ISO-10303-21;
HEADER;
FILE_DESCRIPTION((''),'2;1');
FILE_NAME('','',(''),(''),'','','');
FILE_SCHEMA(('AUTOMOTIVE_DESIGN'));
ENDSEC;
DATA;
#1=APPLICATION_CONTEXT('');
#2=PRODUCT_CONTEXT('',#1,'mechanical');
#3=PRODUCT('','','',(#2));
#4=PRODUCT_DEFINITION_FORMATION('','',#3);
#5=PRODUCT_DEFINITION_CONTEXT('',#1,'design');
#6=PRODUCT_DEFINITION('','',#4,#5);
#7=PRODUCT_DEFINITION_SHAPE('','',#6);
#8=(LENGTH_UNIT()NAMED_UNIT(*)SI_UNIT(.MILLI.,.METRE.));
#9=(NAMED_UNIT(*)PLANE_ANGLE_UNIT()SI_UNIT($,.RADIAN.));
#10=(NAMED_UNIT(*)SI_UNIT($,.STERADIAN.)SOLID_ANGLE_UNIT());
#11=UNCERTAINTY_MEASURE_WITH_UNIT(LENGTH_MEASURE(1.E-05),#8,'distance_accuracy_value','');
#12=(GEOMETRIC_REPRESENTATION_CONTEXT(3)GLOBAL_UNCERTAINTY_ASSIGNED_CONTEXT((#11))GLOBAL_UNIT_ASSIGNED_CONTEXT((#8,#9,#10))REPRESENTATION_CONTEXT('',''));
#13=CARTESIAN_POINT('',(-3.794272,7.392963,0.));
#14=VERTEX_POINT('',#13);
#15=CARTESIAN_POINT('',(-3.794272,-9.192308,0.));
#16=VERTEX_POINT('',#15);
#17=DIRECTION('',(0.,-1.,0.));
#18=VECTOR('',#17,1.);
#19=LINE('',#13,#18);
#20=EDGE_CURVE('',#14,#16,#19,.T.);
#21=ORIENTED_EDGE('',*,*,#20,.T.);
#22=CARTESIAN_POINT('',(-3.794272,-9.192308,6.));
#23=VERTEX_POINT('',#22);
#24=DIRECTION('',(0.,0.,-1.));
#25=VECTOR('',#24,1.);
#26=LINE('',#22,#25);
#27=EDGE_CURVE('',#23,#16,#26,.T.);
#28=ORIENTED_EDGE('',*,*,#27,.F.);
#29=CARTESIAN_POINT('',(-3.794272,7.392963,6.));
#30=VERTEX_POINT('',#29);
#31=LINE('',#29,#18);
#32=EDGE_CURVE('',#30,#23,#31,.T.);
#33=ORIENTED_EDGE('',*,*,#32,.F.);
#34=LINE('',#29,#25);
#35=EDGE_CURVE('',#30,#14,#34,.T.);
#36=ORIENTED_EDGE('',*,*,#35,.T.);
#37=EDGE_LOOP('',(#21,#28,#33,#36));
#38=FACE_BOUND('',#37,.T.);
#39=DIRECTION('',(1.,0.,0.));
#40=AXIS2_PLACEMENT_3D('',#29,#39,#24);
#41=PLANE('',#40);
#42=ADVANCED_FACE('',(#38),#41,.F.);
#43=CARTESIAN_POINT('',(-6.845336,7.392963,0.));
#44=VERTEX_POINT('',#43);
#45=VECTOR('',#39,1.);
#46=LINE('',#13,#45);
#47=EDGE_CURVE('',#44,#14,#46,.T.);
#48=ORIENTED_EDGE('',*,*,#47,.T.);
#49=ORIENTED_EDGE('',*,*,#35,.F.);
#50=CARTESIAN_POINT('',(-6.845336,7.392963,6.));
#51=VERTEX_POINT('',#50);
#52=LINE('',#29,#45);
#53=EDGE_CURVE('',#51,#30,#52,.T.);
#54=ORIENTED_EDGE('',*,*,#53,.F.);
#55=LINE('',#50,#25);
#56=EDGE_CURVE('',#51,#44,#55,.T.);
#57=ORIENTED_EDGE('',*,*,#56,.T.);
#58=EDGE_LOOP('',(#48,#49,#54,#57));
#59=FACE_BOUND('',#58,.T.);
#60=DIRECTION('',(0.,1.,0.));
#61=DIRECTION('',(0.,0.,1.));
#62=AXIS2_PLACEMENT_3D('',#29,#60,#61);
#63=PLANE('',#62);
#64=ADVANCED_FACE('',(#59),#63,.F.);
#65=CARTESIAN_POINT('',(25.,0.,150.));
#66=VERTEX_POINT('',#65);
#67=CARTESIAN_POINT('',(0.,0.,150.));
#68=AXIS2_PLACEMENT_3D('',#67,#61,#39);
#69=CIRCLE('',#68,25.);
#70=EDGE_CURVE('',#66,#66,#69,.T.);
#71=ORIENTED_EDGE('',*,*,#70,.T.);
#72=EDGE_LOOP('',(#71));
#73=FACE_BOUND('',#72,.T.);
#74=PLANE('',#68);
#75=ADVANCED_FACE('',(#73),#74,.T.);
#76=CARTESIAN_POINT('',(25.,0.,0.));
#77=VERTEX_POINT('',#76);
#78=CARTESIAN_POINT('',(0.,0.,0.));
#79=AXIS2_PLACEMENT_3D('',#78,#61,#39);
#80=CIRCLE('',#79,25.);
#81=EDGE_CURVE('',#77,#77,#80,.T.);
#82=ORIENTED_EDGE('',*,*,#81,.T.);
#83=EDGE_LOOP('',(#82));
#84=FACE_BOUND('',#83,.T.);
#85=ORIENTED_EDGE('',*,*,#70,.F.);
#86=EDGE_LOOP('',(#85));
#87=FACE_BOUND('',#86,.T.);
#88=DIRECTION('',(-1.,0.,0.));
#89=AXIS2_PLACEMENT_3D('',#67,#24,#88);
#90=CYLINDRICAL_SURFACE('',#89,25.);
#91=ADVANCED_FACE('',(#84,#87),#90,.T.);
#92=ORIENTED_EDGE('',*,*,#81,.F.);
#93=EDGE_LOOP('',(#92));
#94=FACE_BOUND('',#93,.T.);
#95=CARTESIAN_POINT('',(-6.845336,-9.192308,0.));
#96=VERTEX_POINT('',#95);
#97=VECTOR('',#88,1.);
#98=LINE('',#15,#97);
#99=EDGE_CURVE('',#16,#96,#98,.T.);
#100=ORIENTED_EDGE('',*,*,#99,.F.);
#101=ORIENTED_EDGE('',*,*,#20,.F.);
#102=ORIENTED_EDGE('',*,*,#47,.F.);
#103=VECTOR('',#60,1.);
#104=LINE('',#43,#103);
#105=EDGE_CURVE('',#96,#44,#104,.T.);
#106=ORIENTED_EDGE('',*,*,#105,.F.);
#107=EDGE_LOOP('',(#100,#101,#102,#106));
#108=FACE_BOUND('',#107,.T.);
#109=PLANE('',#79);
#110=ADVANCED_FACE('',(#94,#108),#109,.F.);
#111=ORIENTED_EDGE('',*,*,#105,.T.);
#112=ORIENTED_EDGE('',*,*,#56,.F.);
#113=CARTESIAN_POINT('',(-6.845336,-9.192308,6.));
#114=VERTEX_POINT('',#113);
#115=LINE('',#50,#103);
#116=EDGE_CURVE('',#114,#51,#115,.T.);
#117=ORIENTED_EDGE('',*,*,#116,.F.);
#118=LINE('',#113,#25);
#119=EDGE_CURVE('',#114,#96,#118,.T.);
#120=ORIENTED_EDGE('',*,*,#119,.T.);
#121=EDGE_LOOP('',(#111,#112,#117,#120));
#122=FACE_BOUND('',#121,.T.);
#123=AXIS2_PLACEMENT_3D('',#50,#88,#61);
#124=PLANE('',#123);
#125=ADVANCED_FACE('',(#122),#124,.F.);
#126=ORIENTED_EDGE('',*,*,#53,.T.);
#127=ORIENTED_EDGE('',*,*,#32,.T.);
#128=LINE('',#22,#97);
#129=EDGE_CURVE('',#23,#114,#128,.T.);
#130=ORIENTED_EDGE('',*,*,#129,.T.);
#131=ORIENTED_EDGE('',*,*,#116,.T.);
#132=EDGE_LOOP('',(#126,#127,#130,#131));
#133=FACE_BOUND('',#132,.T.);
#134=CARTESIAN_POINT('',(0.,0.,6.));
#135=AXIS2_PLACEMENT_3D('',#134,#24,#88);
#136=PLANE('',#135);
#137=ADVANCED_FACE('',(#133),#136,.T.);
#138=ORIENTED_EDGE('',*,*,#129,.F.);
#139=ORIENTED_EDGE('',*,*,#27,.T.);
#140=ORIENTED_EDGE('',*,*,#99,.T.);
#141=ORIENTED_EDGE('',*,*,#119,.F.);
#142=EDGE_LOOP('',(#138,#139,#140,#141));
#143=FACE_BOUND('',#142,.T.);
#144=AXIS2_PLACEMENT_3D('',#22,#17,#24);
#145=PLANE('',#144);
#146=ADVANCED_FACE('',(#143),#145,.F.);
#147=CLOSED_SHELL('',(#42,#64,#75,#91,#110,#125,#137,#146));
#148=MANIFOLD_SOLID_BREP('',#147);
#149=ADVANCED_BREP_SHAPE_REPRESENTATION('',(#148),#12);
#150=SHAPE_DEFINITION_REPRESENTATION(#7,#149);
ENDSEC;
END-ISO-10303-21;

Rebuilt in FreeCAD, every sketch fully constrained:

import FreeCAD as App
import Part
import Sketcher

V = App.Vector

doc = App.newDocument("Part")
body = doc.addObject("PartDesign::Body", "Body")

sketch1 = body.newObject("Sketcher::SketchObject", "Sketch")
sketch1.AttachmentSupport = (doc.getObject("XY_Plane"), [""])
sketch1.MapMode = "FlatFace"
sketch1.addGeometry(Part.Circle(V(0, 0, 0), V(0, 0, 1), 25), False)
sketch1.addConstraint([
    Sketcher.Constraint("Coincident", 0, 3, -1, 1),
    Sketcher.Constraint("Diameter", 0, 50.0),
])
pad1 = body.newObject("PartDesign::Pad", "Pad")
pad1.Profile = sketch1
pad1.Length = 150

sketch2 = body.newObject("Sketcher::SketchObject", "Sketch001")
sketch2.AttachmentSupport = (doc.getObject("XY_Plane"), [""])
sketch2.MapMode = "FlatFace"
sketch2.addGeometry([
    Part.LineSegment(V(-3.8, 7.4, 0), V(-3.8, -9.2, 0)),
    Part.LineSegment(V(-3.8, -9.2, 0), V(-6.8, -9.2, 0)),
    Part.LineSegment(V(-6.8, -9.2, 0), V(-6.8, 7.4, 0)),
    Part.LineSegment(V(-6.8, 7.4, 0), V(-3.8, 7.4, 0)),
], False)
sketch2.addConstraint([
    Sketcher.Constraint("Coincident", 0, 2, 1, 1),
    Sketcher.Constraint("Coincident", 1, 2, 2, 1),
    Sketcher.Constraint("Coincident", 2, 2, 3, 1),
    Sketcher.Constraint("Coincident", 3, 2, 0, 1),
    Sketcher.Constraint("Vertical", 0),
    Sketcher.Constraint("Horizontal", 1),
    Sketcher.Constraint("Vertical", 2),
    Sketcher.Constraint("Horizontal", 3),
    Sketcher.Constraint("DistanceY", 0, 2, 0, 1, 16.585271),
    Sketcher.Constraint("DistanceX", 1, 2, 1, 1, 3.051064),
    Sketcher.Constraint("DistanceY", 0, 2, -1, 1, 9.192308),
    Sketcher.Constraint("DistanceX", 0, 2, -1, 1, 3.794272),
])
pocket1 = body.newObject("PartDesign::Pocket", "Pocket")
pocket1.Profile = sketch2
pocket1.Length = 6
pocket1.Reversed = True

doc.recompute()
